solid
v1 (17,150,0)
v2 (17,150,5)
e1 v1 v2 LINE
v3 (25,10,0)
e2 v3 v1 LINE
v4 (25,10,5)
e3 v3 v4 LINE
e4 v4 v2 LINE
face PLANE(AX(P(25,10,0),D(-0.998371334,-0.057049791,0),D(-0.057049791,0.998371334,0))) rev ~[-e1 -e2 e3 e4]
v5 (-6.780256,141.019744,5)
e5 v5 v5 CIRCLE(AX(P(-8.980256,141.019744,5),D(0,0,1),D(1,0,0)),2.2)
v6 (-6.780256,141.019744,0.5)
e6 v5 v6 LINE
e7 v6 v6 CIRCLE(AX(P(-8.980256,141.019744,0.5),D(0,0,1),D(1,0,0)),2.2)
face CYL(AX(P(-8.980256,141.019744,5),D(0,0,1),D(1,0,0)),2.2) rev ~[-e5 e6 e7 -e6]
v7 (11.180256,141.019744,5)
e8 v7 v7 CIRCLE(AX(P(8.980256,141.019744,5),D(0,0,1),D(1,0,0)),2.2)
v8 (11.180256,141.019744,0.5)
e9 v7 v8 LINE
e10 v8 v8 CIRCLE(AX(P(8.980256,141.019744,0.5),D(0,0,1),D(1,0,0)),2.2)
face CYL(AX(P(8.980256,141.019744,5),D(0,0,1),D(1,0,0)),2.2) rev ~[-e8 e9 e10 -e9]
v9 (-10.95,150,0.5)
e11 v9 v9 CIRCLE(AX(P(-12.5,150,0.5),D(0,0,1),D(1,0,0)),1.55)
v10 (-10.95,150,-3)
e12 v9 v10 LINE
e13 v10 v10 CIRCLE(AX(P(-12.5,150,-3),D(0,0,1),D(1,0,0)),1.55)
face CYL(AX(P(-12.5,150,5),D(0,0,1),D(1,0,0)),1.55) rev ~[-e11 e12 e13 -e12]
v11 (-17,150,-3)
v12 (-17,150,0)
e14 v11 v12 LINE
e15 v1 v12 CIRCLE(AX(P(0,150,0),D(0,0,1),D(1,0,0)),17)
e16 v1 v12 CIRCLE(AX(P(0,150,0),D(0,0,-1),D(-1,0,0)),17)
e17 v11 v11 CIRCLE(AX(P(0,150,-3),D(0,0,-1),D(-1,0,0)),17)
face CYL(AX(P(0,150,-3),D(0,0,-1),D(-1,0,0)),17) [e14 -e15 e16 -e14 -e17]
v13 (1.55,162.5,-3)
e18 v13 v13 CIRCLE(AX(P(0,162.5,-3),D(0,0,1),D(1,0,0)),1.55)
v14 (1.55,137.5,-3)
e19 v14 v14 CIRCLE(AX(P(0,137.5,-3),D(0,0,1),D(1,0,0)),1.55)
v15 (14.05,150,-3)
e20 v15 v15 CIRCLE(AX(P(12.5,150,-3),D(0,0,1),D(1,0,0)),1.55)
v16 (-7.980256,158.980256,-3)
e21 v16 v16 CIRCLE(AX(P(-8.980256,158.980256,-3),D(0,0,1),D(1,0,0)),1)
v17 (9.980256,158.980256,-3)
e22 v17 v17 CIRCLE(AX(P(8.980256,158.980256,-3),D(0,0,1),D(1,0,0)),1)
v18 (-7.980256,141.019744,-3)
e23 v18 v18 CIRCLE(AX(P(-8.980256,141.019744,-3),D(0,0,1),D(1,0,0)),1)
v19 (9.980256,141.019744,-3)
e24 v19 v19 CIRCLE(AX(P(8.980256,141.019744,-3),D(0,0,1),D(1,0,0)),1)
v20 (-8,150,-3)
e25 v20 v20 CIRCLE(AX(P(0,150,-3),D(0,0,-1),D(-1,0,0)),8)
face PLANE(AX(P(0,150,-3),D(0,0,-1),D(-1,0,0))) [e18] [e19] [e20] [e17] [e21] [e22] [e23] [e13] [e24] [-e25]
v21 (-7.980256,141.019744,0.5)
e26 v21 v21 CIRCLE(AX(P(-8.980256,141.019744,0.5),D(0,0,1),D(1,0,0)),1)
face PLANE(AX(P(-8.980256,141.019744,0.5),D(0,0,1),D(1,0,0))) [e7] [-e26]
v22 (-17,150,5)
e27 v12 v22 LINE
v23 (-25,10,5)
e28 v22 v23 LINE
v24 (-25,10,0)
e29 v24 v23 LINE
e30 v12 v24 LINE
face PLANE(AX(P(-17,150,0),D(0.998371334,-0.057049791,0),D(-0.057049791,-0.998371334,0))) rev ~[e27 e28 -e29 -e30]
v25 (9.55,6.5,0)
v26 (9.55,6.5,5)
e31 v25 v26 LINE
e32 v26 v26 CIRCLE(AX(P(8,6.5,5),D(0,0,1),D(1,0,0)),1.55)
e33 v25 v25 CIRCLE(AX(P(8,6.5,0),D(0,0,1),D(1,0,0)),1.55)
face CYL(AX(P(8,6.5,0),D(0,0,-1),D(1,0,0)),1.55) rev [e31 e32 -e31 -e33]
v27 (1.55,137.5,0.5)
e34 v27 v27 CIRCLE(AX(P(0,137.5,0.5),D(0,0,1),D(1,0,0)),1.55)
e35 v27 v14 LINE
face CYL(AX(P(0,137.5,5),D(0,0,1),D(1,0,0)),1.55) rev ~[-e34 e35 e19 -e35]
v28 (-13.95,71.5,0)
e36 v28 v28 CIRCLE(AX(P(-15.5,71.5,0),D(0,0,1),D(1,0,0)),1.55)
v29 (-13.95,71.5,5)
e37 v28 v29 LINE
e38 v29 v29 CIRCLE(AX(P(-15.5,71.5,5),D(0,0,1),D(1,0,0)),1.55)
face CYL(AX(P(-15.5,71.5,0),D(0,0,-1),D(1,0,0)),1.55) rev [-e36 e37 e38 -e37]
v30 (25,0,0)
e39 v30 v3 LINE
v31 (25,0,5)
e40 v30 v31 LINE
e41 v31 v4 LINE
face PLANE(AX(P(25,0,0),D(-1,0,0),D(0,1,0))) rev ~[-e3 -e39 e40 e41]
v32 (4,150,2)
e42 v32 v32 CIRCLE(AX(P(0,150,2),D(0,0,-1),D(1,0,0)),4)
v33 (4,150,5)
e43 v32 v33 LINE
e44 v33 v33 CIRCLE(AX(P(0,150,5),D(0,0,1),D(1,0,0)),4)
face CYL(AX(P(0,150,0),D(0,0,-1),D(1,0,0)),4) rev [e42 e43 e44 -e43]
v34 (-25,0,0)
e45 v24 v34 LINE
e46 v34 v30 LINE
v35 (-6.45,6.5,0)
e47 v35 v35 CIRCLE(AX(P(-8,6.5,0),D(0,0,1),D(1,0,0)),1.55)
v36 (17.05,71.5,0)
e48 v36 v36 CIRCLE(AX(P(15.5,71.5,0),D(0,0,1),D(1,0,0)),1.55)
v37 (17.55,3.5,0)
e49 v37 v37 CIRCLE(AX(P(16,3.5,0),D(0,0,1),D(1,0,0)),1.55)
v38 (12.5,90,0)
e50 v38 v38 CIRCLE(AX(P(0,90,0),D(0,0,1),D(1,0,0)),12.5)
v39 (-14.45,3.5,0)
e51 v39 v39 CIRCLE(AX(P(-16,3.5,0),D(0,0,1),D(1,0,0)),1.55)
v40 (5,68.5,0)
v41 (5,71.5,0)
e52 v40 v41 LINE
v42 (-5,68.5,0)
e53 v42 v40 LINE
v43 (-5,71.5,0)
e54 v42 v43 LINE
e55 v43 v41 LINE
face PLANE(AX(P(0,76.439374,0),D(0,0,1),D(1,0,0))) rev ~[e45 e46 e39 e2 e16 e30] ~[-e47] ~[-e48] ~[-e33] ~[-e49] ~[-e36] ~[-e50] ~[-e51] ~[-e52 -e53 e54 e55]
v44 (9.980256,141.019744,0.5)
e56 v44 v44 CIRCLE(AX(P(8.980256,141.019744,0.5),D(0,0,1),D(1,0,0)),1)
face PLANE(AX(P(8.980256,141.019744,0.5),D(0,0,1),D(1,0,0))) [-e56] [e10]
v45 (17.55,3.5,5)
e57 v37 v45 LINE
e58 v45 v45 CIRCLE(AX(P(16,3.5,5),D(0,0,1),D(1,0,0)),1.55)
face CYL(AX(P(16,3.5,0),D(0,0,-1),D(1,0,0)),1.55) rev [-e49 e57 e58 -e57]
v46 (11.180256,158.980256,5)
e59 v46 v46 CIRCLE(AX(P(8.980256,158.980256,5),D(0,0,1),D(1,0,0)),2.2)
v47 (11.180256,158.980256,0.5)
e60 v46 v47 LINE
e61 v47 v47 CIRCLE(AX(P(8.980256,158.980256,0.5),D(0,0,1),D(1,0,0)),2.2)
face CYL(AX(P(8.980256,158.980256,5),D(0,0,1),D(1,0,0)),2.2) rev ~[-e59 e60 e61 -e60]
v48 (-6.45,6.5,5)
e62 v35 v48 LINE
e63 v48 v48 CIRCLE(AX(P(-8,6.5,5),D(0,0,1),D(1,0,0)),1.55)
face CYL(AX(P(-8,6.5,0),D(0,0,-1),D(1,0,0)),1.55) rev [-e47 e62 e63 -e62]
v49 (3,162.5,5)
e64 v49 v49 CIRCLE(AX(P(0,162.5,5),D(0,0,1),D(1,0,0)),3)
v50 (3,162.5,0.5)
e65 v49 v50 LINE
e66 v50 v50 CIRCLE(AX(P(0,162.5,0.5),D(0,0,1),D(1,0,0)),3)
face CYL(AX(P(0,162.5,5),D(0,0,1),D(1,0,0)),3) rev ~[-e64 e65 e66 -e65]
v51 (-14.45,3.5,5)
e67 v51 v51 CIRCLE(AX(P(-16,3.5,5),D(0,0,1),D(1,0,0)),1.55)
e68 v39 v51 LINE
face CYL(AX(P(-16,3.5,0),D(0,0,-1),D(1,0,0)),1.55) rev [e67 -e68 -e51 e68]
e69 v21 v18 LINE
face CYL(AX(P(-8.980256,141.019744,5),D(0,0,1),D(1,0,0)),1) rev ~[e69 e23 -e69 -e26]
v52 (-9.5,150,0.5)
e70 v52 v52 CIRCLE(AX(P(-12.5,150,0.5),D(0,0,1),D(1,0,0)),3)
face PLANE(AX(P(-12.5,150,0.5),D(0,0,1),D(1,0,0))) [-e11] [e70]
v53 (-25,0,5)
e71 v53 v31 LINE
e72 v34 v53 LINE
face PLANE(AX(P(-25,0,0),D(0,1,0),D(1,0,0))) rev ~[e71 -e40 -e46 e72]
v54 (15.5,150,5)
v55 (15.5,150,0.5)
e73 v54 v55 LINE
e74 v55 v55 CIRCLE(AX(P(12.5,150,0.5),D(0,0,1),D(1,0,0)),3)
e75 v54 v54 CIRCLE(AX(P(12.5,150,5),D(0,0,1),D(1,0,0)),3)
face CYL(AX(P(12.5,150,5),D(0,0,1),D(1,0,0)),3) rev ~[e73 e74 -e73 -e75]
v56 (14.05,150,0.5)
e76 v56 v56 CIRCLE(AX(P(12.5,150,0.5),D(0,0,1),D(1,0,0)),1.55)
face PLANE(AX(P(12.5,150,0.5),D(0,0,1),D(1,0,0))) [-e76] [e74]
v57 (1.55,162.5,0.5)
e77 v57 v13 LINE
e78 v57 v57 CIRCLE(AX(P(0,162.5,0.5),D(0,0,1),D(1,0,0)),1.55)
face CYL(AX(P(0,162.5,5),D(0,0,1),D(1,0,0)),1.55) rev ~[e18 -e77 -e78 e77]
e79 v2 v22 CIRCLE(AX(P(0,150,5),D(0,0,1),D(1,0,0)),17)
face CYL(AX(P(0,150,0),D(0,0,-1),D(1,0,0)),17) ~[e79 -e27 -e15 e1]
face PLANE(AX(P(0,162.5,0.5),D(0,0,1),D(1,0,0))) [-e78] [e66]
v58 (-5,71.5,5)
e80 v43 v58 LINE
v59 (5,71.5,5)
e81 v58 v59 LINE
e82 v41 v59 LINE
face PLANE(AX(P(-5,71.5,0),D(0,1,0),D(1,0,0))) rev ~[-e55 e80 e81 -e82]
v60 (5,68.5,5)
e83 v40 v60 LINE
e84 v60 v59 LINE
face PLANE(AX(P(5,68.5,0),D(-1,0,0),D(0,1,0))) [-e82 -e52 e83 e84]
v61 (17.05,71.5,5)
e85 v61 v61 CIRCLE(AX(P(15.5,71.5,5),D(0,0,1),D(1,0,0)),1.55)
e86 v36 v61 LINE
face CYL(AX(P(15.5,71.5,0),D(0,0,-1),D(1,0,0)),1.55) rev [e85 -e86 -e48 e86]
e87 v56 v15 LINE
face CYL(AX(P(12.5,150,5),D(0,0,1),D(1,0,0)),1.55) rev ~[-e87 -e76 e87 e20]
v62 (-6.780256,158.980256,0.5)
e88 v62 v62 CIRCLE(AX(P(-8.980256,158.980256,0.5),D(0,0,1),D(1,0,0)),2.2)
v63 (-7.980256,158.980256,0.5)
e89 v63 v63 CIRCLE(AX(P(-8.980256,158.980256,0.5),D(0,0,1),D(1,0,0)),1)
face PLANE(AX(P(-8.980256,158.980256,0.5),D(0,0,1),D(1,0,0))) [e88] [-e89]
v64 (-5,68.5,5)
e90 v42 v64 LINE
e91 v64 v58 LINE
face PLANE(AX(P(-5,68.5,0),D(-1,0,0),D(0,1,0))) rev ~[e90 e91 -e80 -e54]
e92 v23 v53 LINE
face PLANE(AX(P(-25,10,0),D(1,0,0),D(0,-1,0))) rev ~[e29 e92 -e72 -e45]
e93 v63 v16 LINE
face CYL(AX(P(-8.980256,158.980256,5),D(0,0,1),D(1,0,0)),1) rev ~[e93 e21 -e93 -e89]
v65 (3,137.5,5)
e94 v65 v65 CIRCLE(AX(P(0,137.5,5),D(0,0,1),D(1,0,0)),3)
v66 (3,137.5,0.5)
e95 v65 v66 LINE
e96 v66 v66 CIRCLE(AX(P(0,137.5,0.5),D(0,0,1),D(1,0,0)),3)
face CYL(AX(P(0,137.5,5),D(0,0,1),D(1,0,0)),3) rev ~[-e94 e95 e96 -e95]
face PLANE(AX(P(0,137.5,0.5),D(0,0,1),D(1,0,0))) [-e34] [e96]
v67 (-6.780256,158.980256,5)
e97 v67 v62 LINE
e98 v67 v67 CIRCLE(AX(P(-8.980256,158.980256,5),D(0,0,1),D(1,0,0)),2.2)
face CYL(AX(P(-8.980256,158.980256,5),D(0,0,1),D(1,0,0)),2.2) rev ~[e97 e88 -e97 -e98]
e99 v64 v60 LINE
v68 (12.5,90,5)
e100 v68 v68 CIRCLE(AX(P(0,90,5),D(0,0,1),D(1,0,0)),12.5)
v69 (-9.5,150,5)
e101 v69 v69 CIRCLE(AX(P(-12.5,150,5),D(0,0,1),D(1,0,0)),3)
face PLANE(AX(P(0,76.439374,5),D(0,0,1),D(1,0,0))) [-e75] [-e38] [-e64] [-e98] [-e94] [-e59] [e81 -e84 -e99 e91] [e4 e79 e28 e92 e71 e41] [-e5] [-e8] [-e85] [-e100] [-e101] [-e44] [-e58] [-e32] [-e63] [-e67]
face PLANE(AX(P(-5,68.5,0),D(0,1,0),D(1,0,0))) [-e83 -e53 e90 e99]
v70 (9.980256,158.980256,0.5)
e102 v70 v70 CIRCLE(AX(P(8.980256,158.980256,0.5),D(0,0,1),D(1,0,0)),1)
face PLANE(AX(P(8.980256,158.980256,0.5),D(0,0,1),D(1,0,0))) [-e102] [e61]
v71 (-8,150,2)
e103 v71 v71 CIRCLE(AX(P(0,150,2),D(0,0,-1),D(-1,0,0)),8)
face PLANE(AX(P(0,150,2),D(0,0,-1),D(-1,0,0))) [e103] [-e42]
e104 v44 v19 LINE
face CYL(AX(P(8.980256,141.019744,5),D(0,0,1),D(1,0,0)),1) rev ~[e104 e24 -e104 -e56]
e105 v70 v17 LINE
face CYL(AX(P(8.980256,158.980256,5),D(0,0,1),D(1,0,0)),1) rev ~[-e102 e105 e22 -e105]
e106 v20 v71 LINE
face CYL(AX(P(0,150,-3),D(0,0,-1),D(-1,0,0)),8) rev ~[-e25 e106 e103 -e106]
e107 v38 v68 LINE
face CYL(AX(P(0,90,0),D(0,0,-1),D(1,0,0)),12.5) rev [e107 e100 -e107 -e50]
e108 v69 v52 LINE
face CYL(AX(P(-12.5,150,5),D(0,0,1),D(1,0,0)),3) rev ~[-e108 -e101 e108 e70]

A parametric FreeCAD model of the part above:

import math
import FreeCAD as App
import Part
import Sketcher

V = App.Vector


def add_polygon(sketch, points):
    """Adds a closed chain of lines whose ends are joined by coincident constraints."""
    first, n = sketch.GeometryCount, len(points)
    for a, b in zip(points, points[1:] + points[:1]):
        sketch.addGeometry(Part.LineSegment(App.Vector(*a, 0), App.Vector(*b, 0)), False)
    for i in range(n):
        sketch.addConstraint(Sketcher.Constraint("Coincident", first + i, 2, first + (i + 1) % n, 1))

doc = App.newDocument("Part")
body = doc.addObject("PartDesign::Body", "Body")

# Sketch on XY plane
sketch1 = body.newObject("Sketcher::SketchObject", "Sketch")
sketch1.AttachmentSupport = (doc.getObject("XY_Plane"), [""])
sketch1.MapMode = "FlatFace"
sketch1.addGeometry(Part.LineSegment(V(-25, 0, 0), V(25, 0, 0)), False)  # 0
sketch1.addGeometry(Part.LineSegment(V(25, 0, 0), V(25, 10, 0)), False)  # 1
sketch1.addGeometry(Part.LineSegment(V(25, 10, 0), V(17, 150, 0)), False)  # 2
sketch1.addGeometry(Part.ArcOfCircle(Part.Circle(V(0, 150, 0), V(0, 0, 1), 17), math.radians(0), math.radians(180)), False)  # 3
sketch1.addGeometry(Part.LineSegment(V(-17, 150, 0), V(-25, 10, 0)), False)  # 4
sketch1.addGeometry(Part.LineSegment(V(-25, 10, 0), V(-25, 0, 0)), False)  # 5
sketch1.addGeometry(Part.Circle(V(-16, 3.5, 0), V(0, 0, 1), 1.6), False)  # 6
sketch1.addGeometry(Part.Circle(V(-8, 6.5, 0), V(0, 0, 1), 1.6), False)  # 7
sketch1.addGeometry(Part.Circle(V(-15.5, 71.5, 0), V(0, 0, 1), 1.6), False)  # 8
sketch1.addGeometry(Part.Circle(V(8, 6.5, 0), V(0, 0, 1), 1.6), False)  # 9
sketch1.addGeometry(Part.Circle(V(16, 3.5, 0), V(0, 0, 1), 1.6), False)  # 10
add_polygon(sketch1, [(5, 68.5), (-5, 68.5), (-5, 71.5), (5, 71.5)])  # lines 11-14
sketch1.addGeometry(Part.Circle(V(15.5, 71.5, 0), V(0, 0, 1), 1.6), False)  # 15
sketch1.addGeometry(Part.Circle(V(0, 90, 0), V(0, 0, 1), 12.5), False)  # 16
sketch1.addGeometry(Part.Circle(V(0, 150, 0), V(0, 0, 1), 4), False)  # 17
sketch1.addConstraint(Sketcher.Constraint("Coincident", 0, 2, 1, 1))
sketch1.addConstraint(Sketcher.Constraint("Coincident", 1, 2, 2, 1))
sketch1.addConstraint(Sketcher.Constraint("Coincident", 2, 2, 3, 1))
sketch1.addConstraint(Sketcher.Constraint("Coincident", 3, 2, 4, 1))
sketch1.addConstraint(Sketcher.Constraint("Coincident", 4, 2, 5, 1))
sketch1.addConstraint(Sketcher.Constraint("Coincident", 5, 2, 0, 1))
sketch1.addConstraint(Sketcher.Constraint("Horizontal", 0))
sketch1.addConstraint(Sketcher.Constraint("Vertical", 1))
sketch1.addConstraint(Sketcher.Constraint("Vertical", 5))
sketch1.addConstraint(Sketcher.Constraint("Horizontal", 11))
sketch1.addConstraint(Sketcher.Constraint("Vertical", 12))
sketch1.addConstraint(Sketcher.Constraint("Horizontal", 13))
sketch1.addConstraint(Sketcher.Constraint("Vertical", 14))
sketch1.addConstraint(Sketcher.Constraint("Coincident", 17, 3, 3, 3))
sketch1.addConstraint(Sketcher.Constraint("Equal", 6, 7))
sketch1.addConstraint(Sketcher.Constraint("Equal", 7, 8))
sketch1.addConstraint(Sketcher.Constraint("Equal", 8, 9))
sketch1.addConstraint(Sketcher.Constraint("Equal", 9, 10))
sketch1.addConstraint(Sketcher.Constraint("Equal", 10, 15))
sketch1.addConstraint(Sketcher.Constraint("Symmetric", 0, 2, 5, 2, -1, 1))
sketch1.addConstraint(Sketcher.Constraint("Symmetric", 7, 3, 9, 3, -2))
sketch1.addConstraint(Sketcher.Constraint("Symmetric", 6, 3, 10, 3, -2))
sketch1.addConstraint(Sketcher.Constraint("Symmetric", 8, 3, 15, 3, -2))
sketch1.addConstraint(Sketcher.Constraint("Symmetric", 2, 2, 3, 2, -2))
sketch1.addConstraint(Sketcher.Constraint("PointOnObject", 16, 3, -2))
sketch1.addConstraint(Sketcher.Constraint("Horizontal", 17, 3, 2, 2))
sketch1.addConstraint(Sketcher.Constraint("Horizontal", 1, 2, 4, 2))
sketch1.addConstraint(Sketcher.Constraint("Horizontal", 15, 3, 12, 2))
sketch1.addConstraint(Sketcher.Constraint("Equal", 13, 1))
sketch1.addConstraint(Sketcher.Constraint("Diameter", 16, 25.0))
sketch1.addConstraint(Sketcher.Constraint("Diameter", 17, 8.0))
sketch1.addConstraint(Sketcher.Constraint("Radius", 3, 17.0))
sketch1.addConstraint(Sketcher.Constraint("Diameter", 6, 3.1))
sketch1.addConstraint(Sketcher.Constraint("DistanceX", 0, 1, 0, 2, 50.0))
sketch1.addConstraint(Sketcher.Constraint("DistanceX", 11, 2, 11, 1, 10.0))
sketch1.addConstraint(Sketcher.Constraint("DistanceY", 12, 1, 12, 2, 3.0))
sketch1.addConstraint(Sketcher.Constraint("DistanceY", -1, 1, 3, 3, 150.0))
sketch1.addConstraint(Sketcher.Constraint("DistanceX", 6, 3, -1, 1, 16.0))
sketch1.addConstraint(Sketcher.Constraint("DistanceX", 7, 3, -1, 1, 8.0))
sketch1.addConstraint(Sketcher.Constraint("DistanceY", -1, 1, 16, 3, 90.0))
sketch1.addConstraint(Sketcher.Constraint("DistanceX", 11, 2, -1, 1, 5.0))
sketch1.addConstraint(Sketcher.Constraint("DistanceY", 6, 3, 7, 3, 3.0))
sketch1.addConstraint(Sketcher.Constraint("DistanceY", 7, 3, 8, 3, 65.0))
sketch1.addConstraint(Sketcher.Constraint("DistanceX", 8, 3, 15, 3, 31.0))
sketch1.addConstraint(Sketcher.Constraint("DistanceY", -1, 1, 6, 3, 3.5))
pad1 = body.newObject("PartDesign::Pad", "Pad")
pad1.Profile = sketch1
pad1.Length = 5

# Sketch on XY plane
sketch2 = body.newObject("Sketcher::SketchObject", "Sketch001")
sketch2.AttachmentSupport = (doc.getObject("XY_Plane"), [""])
sketch2.MapMode = "FlatFace"
sketch2.AttachmentOffset = App.Placement(V(0, 0, -3), App.Rotation())
sketch2.addGeometry(Part.Circle(V(0, 150, 0), V(0, 0, 1), 17), False)
sketch2.addConstraint(Sketcher.Constraint("PointOnObject", 0, 3, -2))
sketch2.addConstraint(Sketcher.Constraint("Diameter", 0, 34.0))
sketch2.addConstraint(Sketcher.Constraint("DistanceY", -1, 1, 0, 3, 150.0))
pad2 = body.newObject("PartDesign::Pad", "Pad001")
pad2.Profile = sketch2
pad2.Length = 3

# Sketch on XY plane
sketch3 = body.newObject("Sketcher::SketchObject", "Sketch002")
sketch3.AttachmentSupport = (doc.getObject("XY_Plane"), [""])
sketch3.MapMode = "FlatFace"
sketch3.AttachmentOffset = App.Placement(V(0, 0, 5), App.Rotation())
sketch3.addGeometry(Part.Circle(V(-12.5, 150, 0), V(0, 0, 1), 1.6), False)
sketch3.addGeometry(Part.Circle(V(0, 162.5, 0), V(0, 0, 1), 1.6), False)
sketch3.addGeometry(Part.Circle(V(12.5, 150, 0), V(0, 0, 1), 1.6), False)
sketch3.addGeometry(Part.Circle(V(0, 137.5, 0), V(0, 0, 1), 1.6), False)
sketch3.addGeometry(Part.Circle(V(9, 159, 0), V(0, 0, 1), 1), False)
sketch3.addGeometry(Part.Circle(V(9, 141, 0), V(0, 0, 1), 1), False)
sketch3.addGeometry(Part.Circle(V(-9, 141, 0), V(0, 0, 1), 1), False)
sketch3.addGeometry(Part.Circle(V(-9, 159, 0), V(0, 0, 1), 1), False)
sketch3.addConstraint(Sketcher.Constraint("Equal", 0, 1))
sketch3.addConstraint(Sketcher.Constraint("Equal", 1, 2))
sketch3.addConstraint(Sketcher.Constraint("Equal", 2, 3))
sketch3.addConstraint(Sketcher.Constraint("Equal", 4, 5))
sketch3.addConstraint(Sketcher.Constraint("Equal", 5, 6))
sketch3.addConstraint(Sketcher.Constraint("Equal", 6, 7))
sketch3.addConstraint(Sketcher.Constraint("Symmetric", 0, 3, 2, 3, -2))
sketch3.addConstraint(Sketcher.Constraint("Symmetric", 5, 3, 6, 3, -2))
sketch3.addConstraint(Sketcher.Constraint("Symmetric", 4, 3, 7, 3, -2))
sketch3.addConstraint(Sketcher.Constraint("PointOnObject", 1, 3, -2))
sketch3.addConstraint(Sketcher.Constraint("PointOnObject", 3, 3, -2))
sketch3.addConstraint(Sketcher.Constraint("Vertical", 4, 3, 5, 3))
sketch3.addConstraint(Sketcher.Constraint("Diameter", 4, 2.0))
sketch3.addConstraint(Sketcher.Constraint("Diameter", 0, 3.1))
sketch3.addConstraint(Sketcher.Constraint("DistanceY", -1, 1, 0, 3, 150.0))
sketch3.addConstraint(Sketcher.Constraint("DistanceX", 0, 3, 2, 3, 25.0))
sketch3.addConstraint(Sketcher.Constraint("DistanceY", 3, 3, 1, 3, 25.0))
sketch3.addConstraint(Sketcher.Constraint("DistanceY", -1, 1, 1, 3, 162.5))
sketch3.addConstraint(Sketcher.Constraint("DistanceX", -1, 1, 4, 3, 8.980256))
sketch3.addConstraint(Sketcher.Constraint("DistanceY", -1, 1, 4, 3, 158.980256))
sketch3.addConstraint(Sketcher.Constraint("DistanceY", -1, 1, 5, 3, 141.019744))
pocket1 = body.newObject("PartDesign::Pocket", "Pocket")
pocket1.Profile = sketch3
pocket1.Length = 8

# Sketch on XY plane
sketch4 = body.newObject("Sketcher::SketchObject", "Sketch003")
sketch4.AttachmentSupport = (doc.getObject("XY_Plane"), [""])
sketch4.MapMode = "FlatFace"
sketch4.AttachmentOffset = App.Placement(V(0, 0, 5), App.Rotation())
sketch4.addGeometry(Part.Circle(V(-12.5, 150, 0), V(0, 0, 1), 3), False)
sketch4.addGeometry(Part.Circle(V(0, 162.5, 0), V(0, 0, 1), 3), False)
sketch4.addGeometry(Part.Circle(V(12.5, 150, 0), V(0, 0, 1), 3), False)
sketch4.addGeometry(Part.Circle(V(0, 137.5, 0), V(0, 0, 1), 3), False)
sketch4.addGeometry(Part.Circle(V(-9, 159, 0), V(0, 0, 1), 2.2), False)
sketch4.addGeometry(Part.Circle(V(9, 159, 0), V(0, 0, 1), 2.2), False)
sketch4.addGeometry(Part.Circle(V(9, 141, 0), V(0, 0, 1), 2.2), False)
sketch4.addGeometry(Part.Circle(V(-9, 141, 0), V(0, 0, 1), 2.2), False)
sketch4.addConstraint(Sketcher.Constraint("Equal", 0, 1))
sketch4.addConstraint(Sketcher.Constraint("Equal", 1, 2))
sketch4.addConstraint(Sketcher.Constraint("Equal", 2, 3))
sketch4.addConstraint(Sketcher.Constraint("Equal", 4, 5))
sketch4.addConstraint(Sketcher.Constraint("Equal", 5, 6))
sketch4.addConstraint(Sketcher.Constraint("Equal", 6, 7))
sketch4.addConstraint(Sketcher.Constraint("Symmetric", 0, 3, 2, 3, -2))
sketch4.addConstraint(Sketcher.Constraint("Symmetric", 4, 3, 5, 3, -2))
sketch4.addConstraint(Sketcher.Constraint("Symmetric", 6, 3, 7, 3, -2))
sketch4.addConstraint(Sketcher.Constraint("PointOnObject", 1, 3, -2))
sketch4.addConstraint(Sketcher.Constraint("PointOnObject", 3, 3, -2))
sketch4.addConstraint(Sketcher.Constraint("Vertical", 5, 3, 6, 3))
sketch4.addConstraint(Sketcher.Constraint("Diameter", 0, 6.0))
sketch4.addConstraint(Sketcher.Constraint("Diameter", 4, 4.4))
sketch4.addConstraint(Sketcher.Constraint("DistanceY", -1, 1, 0, 3, 150.0))
sketch4.addConstraint(Sketcher.Constraint("DistanceX", 0, 3, 2, 3, 25.0))
sketch4.addConstraint(Sketcher.Constraint("DistanceY", 3, 3, 1, 3, 25.0))
sketch4.addConstraint(Sketcher.Constraint("DistanceY", -1, 1, 1, 3, 162.5))
sketch4.addConstraint(Sketcher.Constraint("DistanceX", 4, 3, -1, 1, 8.980256))
sketch4.addConstraint(Sketcher.Constraint("DistanceY", -1, 1, 4, 3, 158.980256))
sketch4.addConstraint(Sketcher.Constraint("DistanceY", -1, 1, 6, 3, 141.019744))
pocket2 = body.newObject("PartDesign::Pocket", "Pocket001")
pocket2.Profile = sketch4
pocket2.Length = 4.5

# Sketch on XY plane
sketch5 = body.newObject("Sketcher::SketchObject", "Sketch004")
sketch5.AttachmentSupport = (doc.getObject("XY_Plane"), [""])
sketch5.MapMode = "FlatFace"
sketch5.AttachmentOffset = App.Placement(V(0, 0, -3), App.Rotation())
sketch5.addGeometry(Part.Circle(V(0, 150, 0), V(0, 0, 1), 8), False)
sketch5.addConstraint(Sketcher.Constraint("PointOnObject", 0, 3, -2))
sketch5.addConstraint(Sketcher.Constraint("Diameter", 0, 16.0))
sketch5.addConstraint(Sketcher.Constraint("DistanceY", -1, 1, 0, 3, 150.0))
pocket3 = body.newObject("PartDesign::Pocket", "Pocket002")
pocket3.Profile = sketch5
pocket3.Length = 5
pocket3.Reversed = True

doc.recompute()
